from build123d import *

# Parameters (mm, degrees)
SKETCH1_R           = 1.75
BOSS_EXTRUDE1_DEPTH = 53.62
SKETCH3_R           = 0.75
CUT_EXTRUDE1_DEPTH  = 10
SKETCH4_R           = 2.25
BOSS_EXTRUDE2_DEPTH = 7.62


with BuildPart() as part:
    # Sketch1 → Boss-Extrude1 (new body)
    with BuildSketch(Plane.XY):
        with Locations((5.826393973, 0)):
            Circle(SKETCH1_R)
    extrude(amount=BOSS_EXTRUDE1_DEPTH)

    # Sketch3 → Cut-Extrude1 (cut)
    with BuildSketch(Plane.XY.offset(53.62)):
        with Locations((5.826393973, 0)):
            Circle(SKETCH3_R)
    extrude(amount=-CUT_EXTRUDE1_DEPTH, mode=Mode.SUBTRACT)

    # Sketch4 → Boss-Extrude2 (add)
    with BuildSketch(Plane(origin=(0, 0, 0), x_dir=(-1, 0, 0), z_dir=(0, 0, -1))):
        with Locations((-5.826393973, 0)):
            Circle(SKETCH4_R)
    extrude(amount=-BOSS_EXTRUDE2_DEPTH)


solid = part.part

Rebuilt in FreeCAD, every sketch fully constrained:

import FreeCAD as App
import Part
import Sketcher

V = App.Vector
Q = App.Units.Quantity

doc = App.newDocument("Part")
body = doc.addObject("PartDesign::Body", "Body")

# Sketch on XY plane
sketch1 = body.newObject("Sketcher::SketchObject", "Sketch")
sketch1.AttachmentSupport = (doc.getObject("XY_Plane"), [""])
sketch1.MapMode = "FlatFace"
sketch1.addGeometry(Part.Circle(V(5.8, 0, 0), V(0, 0, 1), 1.8), False)
sketch1.addConstraint([
    Sketcher.Constraint("PointOnObject", 0, 3, -1),
    Sketcher.Constraint("Diameter", 0, Q("3.5 mm")),
    Sketcher.Constraint("DistanceX", -1, 1, 0, 3, Q("5.826394 mm")),
])
pad1 = body.newObject("PartDesign::Pad", "Pad")
pad1.Profile = sketch1
pad1.Length = 53.62

# Sketch on XY plane
sketch2 = body.newObject("Sketcher::SketchObject", "Sketch001")
sketch2.AttachmentSupport = (doc.getObject("XY_Plane"), [""])
sketch2.MapMode = "FlatFace"
sketch2.AttachmentOffset = App.Placement(V(0, 0, 53.62), App.Rotation())
sketch2.addGeometry(Part.Circle(V(5.8, 0, 0), V(0, 0, 1), 0.8), False)
sketch2.addConstraint([
    Sketcher.Constraint("PointOnObject", 0, 3, -1),
    Sketcher.Constraint("Diameter", 0, Q("1.5 mm")),
    Sketcher.Constraint("DistanceX", -1, 1, 0, 3, Q("5.826394 mm")),
])
pocket1 = body.newObject("PartDesign::Pocket", "Pocket")
pocket1.Profile = sketch2
pocket1.Length = 10

# Sketch on XY plane
sketch3 = body.newObject("Sketcher::SketchObject", "Sketch002")
sketch3.AttachmentSupport = (doc.getObject("XY_Plane"), [""])
sketch3.MapMode = "FlatFace"
sketch3.addGeometry(Part.Circle(V(5.8, 0, 0), V(0, 0, 1), 2.2), False)
sketch3.addConstraint([
    Sketcher.Constraint("PointOnObject", 0, 3, -1),
    Sketcher.Constraint("Diameter", 0, Q("4.5 mm")),
    Sketcher.Constraint("DistanceX", -1, 1, 0, 3, Q("5.826394 mm")),
])
pad2 = body.newObject("PartDesign::Pad", "Pad001")
pad2.Profile = sketch3
pad2.Length = 7.62

doc.recompute()
